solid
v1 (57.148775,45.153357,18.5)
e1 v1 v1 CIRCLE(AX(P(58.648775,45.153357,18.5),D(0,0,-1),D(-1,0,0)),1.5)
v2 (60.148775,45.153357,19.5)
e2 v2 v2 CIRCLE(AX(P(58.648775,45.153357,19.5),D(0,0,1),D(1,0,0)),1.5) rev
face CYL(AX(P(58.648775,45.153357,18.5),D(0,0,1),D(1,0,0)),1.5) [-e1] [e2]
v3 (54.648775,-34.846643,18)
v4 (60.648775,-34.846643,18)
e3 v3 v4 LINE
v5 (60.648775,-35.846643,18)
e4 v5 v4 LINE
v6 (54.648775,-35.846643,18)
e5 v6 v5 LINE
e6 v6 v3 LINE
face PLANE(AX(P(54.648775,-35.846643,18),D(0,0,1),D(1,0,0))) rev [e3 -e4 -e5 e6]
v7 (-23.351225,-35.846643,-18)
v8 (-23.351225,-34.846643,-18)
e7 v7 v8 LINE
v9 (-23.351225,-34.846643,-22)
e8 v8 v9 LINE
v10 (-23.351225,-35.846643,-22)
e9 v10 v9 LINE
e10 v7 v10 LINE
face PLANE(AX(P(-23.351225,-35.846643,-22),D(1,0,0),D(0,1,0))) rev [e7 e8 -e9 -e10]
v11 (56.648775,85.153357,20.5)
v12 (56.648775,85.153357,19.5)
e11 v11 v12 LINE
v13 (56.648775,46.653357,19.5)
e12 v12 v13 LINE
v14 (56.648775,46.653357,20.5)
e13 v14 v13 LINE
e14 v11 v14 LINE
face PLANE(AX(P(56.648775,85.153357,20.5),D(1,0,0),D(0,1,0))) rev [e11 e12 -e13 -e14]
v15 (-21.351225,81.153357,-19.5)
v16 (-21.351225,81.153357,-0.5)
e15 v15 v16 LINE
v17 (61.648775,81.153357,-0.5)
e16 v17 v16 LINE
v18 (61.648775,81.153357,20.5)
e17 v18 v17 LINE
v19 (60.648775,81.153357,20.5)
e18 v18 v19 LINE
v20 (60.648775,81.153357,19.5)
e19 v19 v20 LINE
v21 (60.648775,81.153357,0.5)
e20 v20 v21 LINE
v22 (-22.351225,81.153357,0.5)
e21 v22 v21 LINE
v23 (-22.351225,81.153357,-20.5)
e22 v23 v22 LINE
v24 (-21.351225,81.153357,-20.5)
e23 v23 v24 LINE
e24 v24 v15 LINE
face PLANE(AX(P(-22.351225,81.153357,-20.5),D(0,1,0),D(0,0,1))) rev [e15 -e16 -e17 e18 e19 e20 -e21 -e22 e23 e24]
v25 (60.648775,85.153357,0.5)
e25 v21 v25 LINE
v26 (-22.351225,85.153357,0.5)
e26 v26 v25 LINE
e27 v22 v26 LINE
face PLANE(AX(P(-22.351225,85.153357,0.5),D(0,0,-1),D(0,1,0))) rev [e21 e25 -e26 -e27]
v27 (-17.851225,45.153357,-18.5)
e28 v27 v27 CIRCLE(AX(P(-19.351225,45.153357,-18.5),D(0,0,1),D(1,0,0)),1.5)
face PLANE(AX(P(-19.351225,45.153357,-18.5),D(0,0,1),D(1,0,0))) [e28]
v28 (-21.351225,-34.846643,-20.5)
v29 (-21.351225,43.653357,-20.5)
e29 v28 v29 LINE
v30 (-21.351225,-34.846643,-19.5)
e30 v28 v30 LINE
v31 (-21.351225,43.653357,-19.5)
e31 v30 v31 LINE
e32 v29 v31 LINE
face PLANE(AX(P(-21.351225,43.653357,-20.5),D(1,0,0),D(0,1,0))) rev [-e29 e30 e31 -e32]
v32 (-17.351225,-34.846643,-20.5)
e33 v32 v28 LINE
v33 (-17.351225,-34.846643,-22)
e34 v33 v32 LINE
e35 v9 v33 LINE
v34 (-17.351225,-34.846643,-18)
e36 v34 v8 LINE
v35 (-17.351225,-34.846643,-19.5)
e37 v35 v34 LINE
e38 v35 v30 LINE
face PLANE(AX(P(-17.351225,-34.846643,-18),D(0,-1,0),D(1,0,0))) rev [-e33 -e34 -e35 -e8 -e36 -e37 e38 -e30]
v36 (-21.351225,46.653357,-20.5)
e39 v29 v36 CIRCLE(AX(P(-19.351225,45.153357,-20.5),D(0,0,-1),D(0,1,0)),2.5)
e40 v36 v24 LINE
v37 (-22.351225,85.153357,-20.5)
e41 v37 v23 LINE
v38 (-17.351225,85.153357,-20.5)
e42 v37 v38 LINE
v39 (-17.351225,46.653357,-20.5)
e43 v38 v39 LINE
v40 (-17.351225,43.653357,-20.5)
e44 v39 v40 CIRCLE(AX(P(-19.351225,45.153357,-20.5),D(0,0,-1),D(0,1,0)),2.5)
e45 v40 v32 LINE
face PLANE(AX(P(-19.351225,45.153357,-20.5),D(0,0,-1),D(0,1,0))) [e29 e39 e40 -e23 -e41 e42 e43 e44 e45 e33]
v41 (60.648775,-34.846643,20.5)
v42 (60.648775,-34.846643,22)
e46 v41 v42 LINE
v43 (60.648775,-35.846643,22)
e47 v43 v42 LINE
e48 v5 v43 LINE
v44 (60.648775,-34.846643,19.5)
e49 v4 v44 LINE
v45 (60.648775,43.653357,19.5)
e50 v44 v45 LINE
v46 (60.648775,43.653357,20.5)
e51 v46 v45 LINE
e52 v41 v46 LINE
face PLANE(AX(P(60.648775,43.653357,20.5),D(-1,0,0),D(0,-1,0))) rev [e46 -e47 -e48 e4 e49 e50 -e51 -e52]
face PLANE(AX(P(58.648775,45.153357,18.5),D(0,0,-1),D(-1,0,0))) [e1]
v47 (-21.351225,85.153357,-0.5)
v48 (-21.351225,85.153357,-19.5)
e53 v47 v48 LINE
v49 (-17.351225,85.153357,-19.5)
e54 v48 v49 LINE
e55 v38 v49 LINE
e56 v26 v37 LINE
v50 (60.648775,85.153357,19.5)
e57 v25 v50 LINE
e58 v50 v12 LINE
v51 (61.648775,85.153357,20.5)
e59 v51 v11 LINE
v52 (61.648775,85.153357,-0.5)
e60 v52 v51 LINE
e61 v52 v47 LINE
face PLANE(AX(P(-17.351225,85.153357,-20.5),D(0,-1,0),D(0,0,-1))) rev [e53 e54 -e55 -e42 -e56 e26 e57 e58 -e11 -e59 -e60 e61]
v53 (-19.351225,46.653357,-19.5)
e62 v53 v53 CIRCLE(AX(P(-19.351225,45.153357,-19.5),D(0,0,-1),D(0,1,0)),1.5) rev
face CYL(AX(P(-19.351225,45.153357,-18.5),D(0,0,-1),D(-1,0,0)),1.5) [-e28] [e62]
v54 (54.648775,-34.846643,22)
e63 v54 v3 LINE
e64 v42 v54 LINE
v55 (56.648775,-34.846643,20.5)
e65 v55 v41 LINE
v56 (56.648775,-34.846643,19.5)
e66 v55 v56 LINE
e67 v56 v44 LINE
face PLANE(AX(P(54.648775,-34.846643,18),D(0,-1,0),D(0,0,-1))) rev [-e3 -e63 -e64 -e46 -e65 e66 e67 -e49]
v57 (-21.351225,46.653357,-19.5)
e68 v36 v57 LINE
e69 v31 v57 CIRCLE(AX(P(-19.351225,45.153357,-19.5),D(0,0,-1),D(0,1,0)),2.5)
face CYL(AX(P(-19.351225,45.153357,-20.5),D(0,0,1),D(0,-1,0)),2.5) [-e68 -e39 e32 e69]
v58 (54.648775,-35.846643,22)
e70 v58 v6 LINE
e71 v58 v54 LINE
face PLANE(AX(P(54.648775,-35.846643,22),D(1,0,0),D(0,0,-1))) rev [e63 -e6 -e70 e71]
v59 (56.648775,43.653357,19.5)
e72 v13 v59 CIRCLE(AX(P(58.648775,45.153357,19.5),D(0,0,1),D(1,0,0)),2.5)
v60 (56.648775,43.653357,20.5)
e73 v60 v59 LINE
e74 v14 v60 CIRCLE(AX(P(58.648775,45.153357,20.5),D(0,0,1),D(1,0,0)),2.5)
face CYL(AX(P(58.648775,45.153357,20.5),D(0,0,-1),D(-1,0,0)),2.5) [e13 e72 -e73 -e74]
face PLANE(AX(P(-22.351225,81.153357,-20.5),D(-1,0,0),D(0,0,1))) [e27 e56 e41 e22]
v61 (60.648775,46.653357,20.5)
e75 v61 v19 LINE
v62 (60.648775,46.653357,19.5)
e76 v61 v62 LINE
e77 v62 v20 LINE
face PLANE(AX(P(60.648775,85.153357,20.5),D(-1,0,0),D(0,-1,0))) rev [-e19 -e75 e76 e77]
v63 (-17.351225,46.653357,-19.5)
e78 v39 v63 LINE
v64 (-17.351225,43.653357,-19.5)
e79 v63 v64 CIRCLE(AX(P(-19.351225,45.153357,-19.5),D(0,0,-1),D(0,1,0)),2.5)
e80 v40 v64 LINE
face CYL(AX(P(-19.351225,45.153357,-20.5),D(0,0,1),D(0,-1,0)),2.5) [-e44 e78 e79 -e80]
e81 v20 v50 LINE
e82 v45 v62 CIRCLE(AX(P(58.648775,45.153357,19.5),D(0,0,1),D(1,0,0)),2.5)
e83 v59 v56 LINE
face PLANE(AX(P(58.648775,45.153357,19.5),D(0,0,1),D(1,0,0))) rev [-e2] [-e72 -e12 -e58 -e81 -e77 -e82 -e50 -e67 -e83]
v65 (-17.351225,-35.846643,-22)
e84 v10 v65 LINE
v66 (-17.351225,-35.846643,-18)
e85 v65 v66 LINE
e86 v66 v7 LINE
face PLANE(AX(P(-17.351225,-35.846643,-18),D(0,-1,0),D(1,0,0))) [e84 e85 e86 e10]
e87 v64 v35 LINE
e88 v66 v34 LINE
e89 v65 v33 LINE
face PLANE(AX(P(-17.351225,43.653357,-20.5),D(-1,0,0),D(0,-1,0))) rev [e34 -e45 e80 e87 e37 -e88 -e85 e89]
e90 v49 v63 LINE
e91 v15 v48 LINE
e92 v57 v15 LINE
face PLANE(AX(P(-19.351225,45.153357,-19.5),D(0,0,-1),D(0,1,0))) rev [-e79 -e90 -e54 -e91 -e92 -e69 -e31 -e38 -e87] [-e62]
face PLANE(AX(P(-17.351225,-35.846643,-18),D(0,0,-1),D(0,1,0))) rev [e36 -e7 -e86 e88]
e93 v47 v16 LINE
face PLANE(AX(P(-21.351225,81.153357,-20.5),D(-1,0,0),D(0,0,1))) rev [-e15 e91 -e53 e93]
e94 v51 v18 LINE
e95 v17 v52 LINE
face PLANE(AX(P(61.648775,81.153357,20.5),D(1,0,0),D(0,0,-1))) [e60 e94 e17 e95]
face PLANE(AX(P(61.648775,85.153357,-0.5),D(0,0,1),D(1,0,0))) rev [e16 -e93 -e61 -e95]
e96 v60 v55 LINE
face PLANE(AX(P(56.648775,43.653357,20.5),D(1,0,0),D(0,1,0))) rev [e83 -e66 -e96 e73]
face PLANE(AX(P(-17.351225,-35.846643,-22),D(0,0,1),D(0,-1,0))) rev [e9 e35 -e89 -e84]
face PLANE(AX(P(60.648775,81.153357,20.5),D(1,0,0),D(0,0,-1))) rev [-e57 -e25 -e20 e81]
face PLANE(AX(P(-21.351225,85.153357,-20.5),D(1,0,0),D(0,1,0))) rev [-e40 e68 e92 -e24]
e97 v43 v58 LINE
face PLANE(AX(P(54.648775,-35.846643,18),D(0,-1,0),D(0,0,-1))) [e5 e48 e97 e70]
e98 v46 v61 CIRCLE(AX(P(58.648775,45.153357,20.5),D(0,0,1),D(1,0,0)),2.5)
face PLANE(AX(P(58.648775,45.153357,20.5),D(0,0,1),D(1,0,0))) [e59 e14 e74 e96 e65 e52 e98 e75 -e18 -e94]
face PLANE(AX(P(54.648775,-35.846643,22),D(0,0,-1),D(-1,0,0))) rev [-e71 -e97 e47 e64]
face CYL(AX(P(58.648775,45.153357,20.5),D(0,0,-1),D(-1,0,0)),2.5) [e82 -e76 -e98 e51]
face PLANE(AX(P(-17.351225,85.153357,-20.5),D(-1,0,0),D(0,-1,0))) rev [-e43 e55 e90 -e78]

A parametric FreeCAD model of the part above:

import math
import FreeCAD as App
import Part
import Sketcher


def add_polygon(sketch, points):
    """Adds a closed chain of lines whose ends are joined by coincident constraints."""
    first, n = sketch.GeometryCount, len(points)
    for a, b in zip(points, points[1:] + points[:1]):
        sketch.addGeometry(Part.LineSegment(App.Vector(*a, 0), App.Vector(*b, 0)), False)
    for i in range(n):
        sketch.addConstraint(Sketcher.Constraint("Coincident", first + i, 2, first + (i + 1) % n, 1))

doc = App.newDocument("Part")
params = doc.addObject("Spreadsheet::Sheet", "Params")
for row, (alias, value) in enumerate([
    ("sketch1_radius", "2.5 mm"),
    ("sketch1_width", "4 mm"),
    ("sketch1_height", "38.5 mm"),
    ("sketch1_height2", "78.5 mm"),
    ("pad1_length", "1 mm"),
    ("sketch2_diameter", "3 mm"),
    ("pad2_length", "1 mm"),
    ("sketch3_radius", "2.5 mm"),
    ("sketch3_width", "4 mm"),
    ("sketch3_height", "78.5 mm"),
    ("sketch3_height2", "38.5 mm"),
    ("pad3_length", "1 mm"),
    ("sketch4_diameter", "3 mm"),
    ("pad4_length", "1 mm"),
    ("sketch5_width", "82 mm"),
    ("sketch5_height", "4 mm"),
    ("pad5_length", "1 mm"),
    ("sketch6_width", "4 mm"),
    ("sketch6_height", "21 mm"),
    ("pad6_length", "1 mm"),
    ("sketch7_width", "4 mm"),
    ("sketch7_height", "21 mm"),
    ("pad7_length", "1 mm"),
    ("sketch8_width", "6 mm"),
    ("sketch8_height", "4 mm"),
    ("pad8_length", "1 mm"),
    ("sketch9_width", "6 mm"),
    ("sketch9_height", "4 mm"),
    ("pad9_length", "1 mm"),
], start=1):
    params.set(f"A{row}", alias)
    params.set(f"B{row}", "=" + value)
    params.setAlias(f"B{row}", alias)

body = doc.addObject("PartDesign::Body", "Body")

sketch1 = doc.addObject("Sketcher::SketchObject", "Sketch")
body.addObject(sketch1)
sketch1.AttachmentSupport = (doc.XY_Plane, [""])
sketch1.MapMode = "FlatFace"
sketch1.AttachmentOffset = App.Placement(App.Vector(0, 0, 19.5), App.Rotation())
sketch1.addGeometry(Part.LineSegment(App.Vector(60.6, 85.2, 0), App.Vector(56.6, 85.2, 0)), False)
sketch1.addGeometry(Part.LineSegment(App.Vector(56.6, 85.2, 0), App.Vector(56.6, 46.7, 0)), False)
sketch1.addGeometry(Part.ArcOfCircle(Part.Circle(App.Vector(58.6, 45.2, 0), App.Vector(0, 0, 1), 2.5), math.radians(143), math.radians(217)), False)
sketch1.addGeometry(Part.LineSegment(App.Vector(56.6, 43.7, 0), App.Vector(56.6, -34.8, 0)), False)
sketch1.addGeometry(Part.LineSegment(App.Vector(56.6, -34.8, 0), App.Vector(60.6, -34.8, 0)), False)
sketch1.addGeometry(Part.LineSegment(App.Vector(60.6, -34.8, 0), App.Vector(60.6, 43.7, 0)), False)
sketch1.addGeometry(Part.ArcOfCircle(Part.Circle(App.Vector(58.6, 45.2, 0), App.Vector(0, 0, 1), 2.5), math.radians(-37), math.radians(37)), False)
sketch1.addGeometry(Part.LineSegment(App.Vector(60.6, 46.7, 0), App.Vector(60.6, 85.2, 0)), False)
sketch1.addConstraint(Sketcher.Constraint("Coincident", 0, 2, 1, 1))
sketch1.addConstraint(Sketcher.Constraint("Coincident", 1, 2, 2, 1))
sketch1.addConstraint(Sketcher.Constraint("Coincident", 2, 2, 3, 1))
sketch1.addConstraint(Sketcher.Constraint("Coincident", 3, 2, 4, 1))
sketch1.addConstraint(Sketcher.Constraint("Coincident", 4, 2, 5, 1))
sketch1.addConstraint(Sketcher.Constraint("Coincident", 5, 2, 6, 1))
sketch1.addConstraint(Sketcher.Constraint("Coincident", 6, 2, 7, 1))
sketch1.addConstraint(Sketcher.Constraint("Coincident", 7, 2, 0, 1))
sketch1.addConstraint(Sketcher.Constraint("Horizontal", 0))
sketch1.addConstraint(Sketcher.Constraint("Vertical", 1))
sketch1.addConstraint(Sketcher.Constraint("Vertical", 3))
sketch1.addConstraint(Sketcher.Constraint("Horizontal", 4))
sketch1.addConstraint(Sketcher.Constraint("Vertical", 5))
sketch1.addConstraint(Sketcher.Constraint("Vertical", 7))
sketch1.addConstraint(Sketcher.Constraint("Coincident", 6, 3, 2, 3))
sketch1.addConstraint(Sketcher.Constraint("Equal", 2, 6))
sketch1.addConstraint(Sketcher.Constraint("Horizontal", 2, 2, 5, 2))
sketch1.addConstraint(Sketcher.Constraint("Horizontal", 1, 2, 6, 2))
sketch1.addConstraint(Sketcher.Constraint("Vertical", 1, 2, 2, 2))
sketch1.addConstraint(Sketcher.Constraint("Radius", 2, 2.5))
sketch1.addConstraint(Sketcher.Constraint("DistanceX", 0, 2, 0, 1, 4.0))
sketch1.addConstraint(Sketcher.Constraint("DistanceY", 1, 2, 1, 1, 38.5))
sketch1.addConstraint(Sketcher.Constraint("DistanceY", 3, 2, 3, 1, 78.5))
sketch1.addConstraint(Sketcher.Constraint("DistanceX", -1, 1, 2, 3, 58.648775))
sketch1.addConstraint(Sketcher.Constraint("DistanceY", -1, 1, 2, 3, 45.153357))
sketch1.setExpression("Constraints[19]", "Params.sketch1_radius")
sketch1.setExpression("Constraints[20]", "Params.sketch1_width")
sketch1.setExpression("Constraints[21]", "Params.sketch1_height")
sketch1.setExpression("Constraints[22]", "Params.sketch1_height2")
pad1 = doc.addObject("PartDesign::Pad", "Pad")
body.addObject(pad1)
pad1.Profile = sketch1
pad1.setExpression("Length", "Params.pad1_length")

sketch2 = doc.addObject("Sketcher::SketchObject", "Sketch001")
body.addObject(sketch2)
sketch2.AttachmentSupport = (doc.XY_Plane, [""])
sketch2.MapMode = "FlatFace"
sketch2.AttachmentOffset = App.Placement(App.Vector(0, 0, 19.5), App.Rotation())
sketch2.addGeometry(Part.Circle(App.Vector(58.6, 45.2, 0), App.Vector(0, 0, 1), 1.5), False)
sketch2.addConstraint(Sketcher.Constraint("Diameter", 0, 3.0))
sketch2.addConstraint(Sketcher.Constraint("DistanceX", -1, 1, 0, 3, 58.648775))
sketch2.addConstraint(Sketcher.Constraint("DistanceY", -1, 1, 0, 3, 45.153357))
sketch2.setExpression("Constraints[0]", "Params.sketch2_diameter")
pad2 = doc.addObject("PartDesign::Pad", "Pad001")
body.addObject(pad2)
pad2.Profile = sketch2
pad2.setExpression("Length", "Params.pad2_length")
pad2.Reversed = True
body2 = doc.addObject("PartDesign::Body", "Body001")

sketch3 = doc.addObject("Sketcher::SketchObject", "Sketch002")
body2.addObject(sketch3)
sketch3.AttachmentSupport = (doc.getObject("XY_Plane001"), [""])
sketch3.MapMode = "FlatFace"
sketch3.AttachmentOffset = App.Placement(App.Vector(0, 0, -19.5), App.Rotation())
sketch3.addGeometry(Part.LineSegment(App.Vector(-17.4, 43.7, 0), App.Vector(-17.4, -34.8, 0)), False)
sketch3.addGeometry(Part.LineSegment(App.Vector(-17.4, -34.8, 0), App.Vector(-21.4, -34.8, 0)), False)
sketch3.addGeometry(Part.LineSegment(App.Vector(-21.4, -34.8, 0), App.Vector(-21.4, 43.7, 0)), False)
sketch3.addGeometry(Part.ArcOfCircle(Part.Circle(App.Vector(-19.4, 45.2, 0), App.Vector(0, 0, 1), 2.5), math.radians(143), math.radians(217)), False)
sketch3.addGeometry(Part.LineSegment(App.Vector(-21.4, 46.7, 0), App.Vector(-21.4, 85.2, 0)), False)
sketch3.addGeometry(Part.LineSegment(App.Vector(-21.4, 85.2, 0), App.Vector(-17.4, 85.2, 0)), False)
sketch3.addGeometry(Part.LineSegment(App.Vector(-17.4, 85.2, 0), App.Vector(-17.4, 46.7, 0)), False)
sketch3.addGeometry(Part.ArcOfCircle(Part.Circle(App.Vector(-19.4, 45.2, 0), App.Vector(0, 0, 1), 2.5), math.radians(-37), math.radians(37)), False)
sketch3.addConstraint(Sketcher.Constraint("Coincident", 0, 2, 1, 1))
sketch3.addConstraint(Sketcher.Constraint("Coincident", 1, 2, 2, 1))
sketch3.addConstraint(Sketcher.Constraint("Coincident", 2, 2, 3, 2))
sketch3.addConstraint(Sketcher.Constraint("Coincident", 3, 1, 4, 1))
sketch3.addConstraint(Sketcher.Constraint("Coincident", 4, 2, 5, 1))
sketch3.addConstraint(Sketcher.Constraint("Coincident", 5, 2, 6, 1))
sketch3.addConstraint(Sketcher.Constraint("Coincident", 6, 2, 7, 2))
sketch3.addConstraint(Sketcher.Constraint("Coincident", 7, 1, 0, 1))
sketch3.addConstraint(Sketcher.Constraint("Vertical", 0))
sketch3.addConstraint(Sketcher.Constraint("Horizontal", 1))
sketch3.addConstraint(Sketcher.Constraint("Vertical", 2))
sketch3.addConstraint(Sketcher.Constraint("Vertical", 4))
sketch3.addConstraint(Sketcher.Constraint("Horizontal", 5))
sketch3.addConstraint(Sketcher.Constraint("Vertical", 6))
sketch3.addConstraint(Sketcher.Constraint("Coincident", 7, 3, 3, 3))
sketch3.addConstraint(Sketcher.Constraint("Equal", 3, 7))
sketch3.addConstraint(Sketcher.Constraint("Horizontal", 3, 1, 6, 2))
sketch3.addConstraint(Sketcher.Constraint("Horizontal", 2, 2, 7, 1))
sketch3.addConstraint(Sketcher.Constraint("Vertical", 2, 2, 3, 1))
sketch3.addConstraint(Sketcher.Constraint("Radius", 3, 2.5))
sketch3.addConstraint(Sketcher.Constraint("DistanceX", 1, 2, 1, 1, 4.0))
sketch3.addConstraint(Sketcher.Constraint("DistanceY", 0, 2, 0, 1, 78.5))
sketch3.addConstraint(Sketcher.Constraint("DistanceY", 4, 1, 4, 2, 38.5))
sketch3.addConstraint(Sketcher.Constraint("DistanceX", 3, 3, -1, 1, 19.351225))
sketch3.addConstraint(Sketcher.Constraint("DistanceY", -1, 1, 3, 3, 45.153357))
sketch3.setExpression("Constraints[19]", "Params.sketch3_radius")
sketch3.setExpression("Constraints[20]", "Params.sketch3_width")
sketch3.setExpression("Constraints[21]", "Params.sketch3_height")
sketch3.setExpression("Constraints[22]", "Params.sketch3_height2")
pad3 = doc.addObject("PartDesign::Pad", "Pad002")
body2.addObject(pad3)
pad3.Profile = sketch3
pad3.setExpression("Length", "Params.pad3_length")
pad3.Reversed = True

sketch4 = doc.addObject("Sketcher::SketchObject", "Sketch003")
body2.addObject(sketch4)
sketch4.AttachmentSupport = (doc.getObject("XY_Plane001"), [""])
sketch4.MapMode = "FlatFace"
sketch4.AttachmentOffset = App.Placement(App.Vector(0, 0, -19.5), App.Rotation())
sketch4.addGeometry(Part.Circle(App.Vector(-19.4, 45.2, 0), App.Vector(0, 0, 1), 1.5), False)
sketch4.addConstraint(Sketcher.Constraint("Diameter", 0, 3.0))
sketch4.addConstraint(Sketcher.Constraint("DistanceX", 0, 3, -1, 1, 19.351225))
sketch4.addConstraint(Sketcher.Constraint("DistanceY", -1, 1, 0, 3, 45.153357))
sketch4.setExpression("Constraints[0]", "Params.sketch4_diameter")
pad4 = doc.addObject("PartDesign::Pad", "Pad003")
body2.addObject(pad4)
pad4.Profile = sketch4
pad4.setExpression("Length", "Params.pad4_length")
body3 = doc.addObject("PartDesign::Body", "Body002")

sketch5 = doc.addObject("Sketcher::SketchObject", "Sketch004")
body3.addObject(sketch5)
sketch5.AttachmentSupport = (doc.getObject("XY_Plane002"), [""])
sketch5.MapMode = "FlatFace"
add_polygon(sketch5, [(-21.4, 85.2), (-21.4, 81.2), (60.6, 81.2), (60.6, 85.2)])
sketch5.addConstraint(Sketcher.Constraint("Vertical", 0))
sketch5.addConstraint(Sketcher.Constraint("Horizontal", 1))
sketch5.addConstraint(Sketcher.Constraint("Vertical", 2))
sketch5.addConstraint(Sketcher.Constraint("Horizontal", 3))
sketch5.addConstraint(Sketcher.Constraint("DistanceX", 1, 1, 1, 2, 82.0))
sketch5.addConstraint(Sketcher.Constraint("DistanceY", 0, 2, 0, 1, 4.0))
sketch5.addConstraint(Sketcher.Constraint("DistanceX", 0, 2, -1, 1, 21.351225))
sketch5.addConstraint(Sketcher.Constraint("DistanceY", -1, 1, 0, 2, 81.153357))
sketch5.setExpression("Constraints[8]", "Params.sketch5_width")
sketch5.setExpression("Constraints[9]", "Params.sketch5_height")
pad5 = doc.addObject("PartDesign::Pad", "Pad004")
body3.addObject(pad5)
pad5.Profile = sketch5
pad5.setExpression("Length", "Params.pad5_length")
pad5.Midplane = True
body.AllowCompound = True
doc.recompute()

boolean = doc.addObject("PartDesign::Boolean", "Boolean")
body.addObject(boolean)
boolean.Type = "Fuse"
boolean.addObjects([body3])

sketch6 = doc.addObject("Sketcher::SketchObject", "Sketch005")
body.addObject(sketch6)
sketch6.AttachmentSupport = (doc.YZ_Plane, [""])
sketch6.MapMode = "FlatFace"
sketch6.AttachmentOffset = App.Placement(App.Vector(0, 0, 60.648775), App.Rotation())
add_polygon(sketch6, [(85.2, 20.5), (81.2, 20.5), (81.2, -0.5), (85.2, -0.5)])
sketch6.addConstraint(Sketcher.Constraint("Horizontal", 0))
sketch6.addConstraint(Sketcher.Constraint("Vertical", 1))
sketch6.addConstraint(Sketcher.Constraint("Horizontal", 2))
sketch6.addConstraint(Sketcher.Constraint("Vertical", 3))
sketch6.addConstraint(Sketcher.Constraint("DistanceX", 0, 2, 0, 1, 4.0))
sketch6.addConstraint(Sketcher.Constraint("DistanceY", 1, 2, 1, 1, 21.0))
sketch6.addConstraint(Sketcher.Constraint("DistanceY", -1, 1, 0, 2, 20.5))
sketch6.addConstraint(Sketcher.Constraint("DistanceX", -1, 1, 0, 2, 81.153357))
sketch6.setExpression("Constraints[8]", "Params.sketch6_width")
sketch6.setExpression("Constraints[9]", "Params.sketch6_height")
pad6 = doc.addObject("PartDesign::Pad", "Pad005")
body.addObject(pad6)
pad6.Profile = sketch6
pad6.setExpression("Length", "Params.pad6_length")
doc.recompute()

boolean2 = doc.addObject("PartDesign::Boolean", "Boolean001")
body.addObject(boolean2)
boolean2.Type = "Fuse"
boolean2.addObjects([body2])

sketch7 = doc.addObject("Sketcher::SketchObject", "Sketch006")
body.addObject(sketch7)
sketch7.AttachmentSupport = (doc.YZ_Plane, [""])
sketch7.MapMode = "FlatFace"
sketch7.AttachmentOffset = App.Placement(App.Vector(0, 0, -21.351225), App.Rotation())
add_polygon(sketch7, [(85.2, -20.5), (81.2, -20.5), (81.2, 0.5), (85.2, 0.5)])
sketch7.addConstraint(Sketcher.Constraint("Horizontal", 0))
sketch7.addConstraint(Sketcher.Constraint("Vertical", 1))
sketch7.addConstraint(Sketcher.Constraint("Horizontal", 2))
sketch7.addConstraint(Sketcher.Constraint("Vertical", 3))
sketch7.addConstraint(Sketcher.Constraint("DistanceX", 0, 2, 0, 1, 4.0))
sketch7.addConstraint(Sketcher.Constraint("DistanceY", 1, 1, 1, 2, 21.0))
sketch7.addConstraint(Sketcher.Constraint("DistanceY", 0, 2, -1, 1, 20.5))
sketch7.addConstraint(Sketcher.Constraint("DistanceX", -1, 1, 0, 2, 81.153357))
sketch7.setExpression("Constraints[8]", "Params.sketch7_width")
sketch7.setExpression("Constraints[9]", "Params.sketch7_height")
pad7 = doc.addObject("PartDesign::Pad", "Pad006")
body.addObject(pad7)
pad7.Profile = sketch7
pad7.setExpression("Length", "Params.pad7_length")
pad7.Reversed = True

sketch8 = doc.addObject("Sketcher::SketchObject", "Sketch007")
body.addObject(sketch8)
sketch8.AttachmentSupport = (doc.XZ_Plane, [""])
sketch8.MapMode = "FlatFace"
sketch8.AttachmentOffset = App.Placement(App.Vector(0, 0, 34.846643), App.Rotation())
add_polygon(sketch8, [(-23.4, -18), (-23.4, -22), (-17.4, -22), (-17.4, -18)])
sketch8.addConstraint(Sketcher.Constraint("Vertical", 0))
sketch8.addConstraint(Sketcher.Constraint("Horizontal", 1))
sketch8.addConstraint(Sketcher.Constraint("Vertical", 2))
sketch8.addConstraint(Sketcher.Constraint("Horizontal", 3))
sketch8.addConstraint(Sketcher.Constraint("DistanceX", 1, 1, 1, 2, 6.0))
sketch8.addConstraint(Sketcher.Constraint("DistanceY", 0, 2, 0, 1, 4.0))
sketch8.addConstraint(Sketcher.Constraint("DistanceY", 0, 2, -1, 1, 22.0))
sketch8.addConstraint(Sketcher.Constraint("DistanceX", 0, 2, -1, 1, 23.351225))
sketch8.setExpression("Constraints[8]", "Params.sketch8_width")
sketch8.setExpression("Constraints[9]", "Params.sketch8_height")
pad8 = doc.addObject("PartDesign::Pad", "Pad007")
body.addObject(pad8)
pad8.Profile = sketch8
pad8.setExpression("Length", "Params.pad8_length")

sketch9 = doc.addObject("Sketcher::SketchObject", "Sketch008")
body.addObject(sketch9)
sketch9.AttachmentSupport = (doc.XZ_Plane, [""])
sketch9.MapMode = "FlatFace"
sketch9.AttachmentOffset = App.Placement(App.Vector(0, 0, 34.846643), App.Rotation())
add_polygon(sketch9, [(54.6, 22), (54.6, 18), (60.6, 18), (60.6, 22)])
sketch9.addConstraint(Sketcher.Constraint("Vertical", 0))
sketch9.addConstraint(Sketcher.Constraint("Horizontal", 1))
sketch9.addConstraint(Sketcher.Constraint("Vertical", 2))
sketch9.addConstraint(Sketcher.Constraint("Horizontal", 3))
sketch9.addConstraint(Sketcher.Constraint("DistanceX", 1, 1, 1, 2, 6.0))
sketch9.addConstraint(Sketcher.Constraint("DistanceY", 0, 2, 0, 1, 4.0))
sketch9.addConstraint(Sketcher.Constraint("DistanceY", -1, 1, 0, 2, 18.0))
sketch9.addConstraint(Sketcher.Constraint("DistanceX", -1, 1, 0, 2, 54.648775))
sketch9.setExpression("Constraints[8]", "Params.sketch9_width")
sketch9.setExpression("Constraints[9]", "Params.sketch9_height")
pad9 = doc.addObject("PartDesign::Pad", "Pad008")
body.addObject(pad9)
pad9.Profile = sketch9
pad9.setExpression("Length", "Params.pad9_length")

doc.recompute()
